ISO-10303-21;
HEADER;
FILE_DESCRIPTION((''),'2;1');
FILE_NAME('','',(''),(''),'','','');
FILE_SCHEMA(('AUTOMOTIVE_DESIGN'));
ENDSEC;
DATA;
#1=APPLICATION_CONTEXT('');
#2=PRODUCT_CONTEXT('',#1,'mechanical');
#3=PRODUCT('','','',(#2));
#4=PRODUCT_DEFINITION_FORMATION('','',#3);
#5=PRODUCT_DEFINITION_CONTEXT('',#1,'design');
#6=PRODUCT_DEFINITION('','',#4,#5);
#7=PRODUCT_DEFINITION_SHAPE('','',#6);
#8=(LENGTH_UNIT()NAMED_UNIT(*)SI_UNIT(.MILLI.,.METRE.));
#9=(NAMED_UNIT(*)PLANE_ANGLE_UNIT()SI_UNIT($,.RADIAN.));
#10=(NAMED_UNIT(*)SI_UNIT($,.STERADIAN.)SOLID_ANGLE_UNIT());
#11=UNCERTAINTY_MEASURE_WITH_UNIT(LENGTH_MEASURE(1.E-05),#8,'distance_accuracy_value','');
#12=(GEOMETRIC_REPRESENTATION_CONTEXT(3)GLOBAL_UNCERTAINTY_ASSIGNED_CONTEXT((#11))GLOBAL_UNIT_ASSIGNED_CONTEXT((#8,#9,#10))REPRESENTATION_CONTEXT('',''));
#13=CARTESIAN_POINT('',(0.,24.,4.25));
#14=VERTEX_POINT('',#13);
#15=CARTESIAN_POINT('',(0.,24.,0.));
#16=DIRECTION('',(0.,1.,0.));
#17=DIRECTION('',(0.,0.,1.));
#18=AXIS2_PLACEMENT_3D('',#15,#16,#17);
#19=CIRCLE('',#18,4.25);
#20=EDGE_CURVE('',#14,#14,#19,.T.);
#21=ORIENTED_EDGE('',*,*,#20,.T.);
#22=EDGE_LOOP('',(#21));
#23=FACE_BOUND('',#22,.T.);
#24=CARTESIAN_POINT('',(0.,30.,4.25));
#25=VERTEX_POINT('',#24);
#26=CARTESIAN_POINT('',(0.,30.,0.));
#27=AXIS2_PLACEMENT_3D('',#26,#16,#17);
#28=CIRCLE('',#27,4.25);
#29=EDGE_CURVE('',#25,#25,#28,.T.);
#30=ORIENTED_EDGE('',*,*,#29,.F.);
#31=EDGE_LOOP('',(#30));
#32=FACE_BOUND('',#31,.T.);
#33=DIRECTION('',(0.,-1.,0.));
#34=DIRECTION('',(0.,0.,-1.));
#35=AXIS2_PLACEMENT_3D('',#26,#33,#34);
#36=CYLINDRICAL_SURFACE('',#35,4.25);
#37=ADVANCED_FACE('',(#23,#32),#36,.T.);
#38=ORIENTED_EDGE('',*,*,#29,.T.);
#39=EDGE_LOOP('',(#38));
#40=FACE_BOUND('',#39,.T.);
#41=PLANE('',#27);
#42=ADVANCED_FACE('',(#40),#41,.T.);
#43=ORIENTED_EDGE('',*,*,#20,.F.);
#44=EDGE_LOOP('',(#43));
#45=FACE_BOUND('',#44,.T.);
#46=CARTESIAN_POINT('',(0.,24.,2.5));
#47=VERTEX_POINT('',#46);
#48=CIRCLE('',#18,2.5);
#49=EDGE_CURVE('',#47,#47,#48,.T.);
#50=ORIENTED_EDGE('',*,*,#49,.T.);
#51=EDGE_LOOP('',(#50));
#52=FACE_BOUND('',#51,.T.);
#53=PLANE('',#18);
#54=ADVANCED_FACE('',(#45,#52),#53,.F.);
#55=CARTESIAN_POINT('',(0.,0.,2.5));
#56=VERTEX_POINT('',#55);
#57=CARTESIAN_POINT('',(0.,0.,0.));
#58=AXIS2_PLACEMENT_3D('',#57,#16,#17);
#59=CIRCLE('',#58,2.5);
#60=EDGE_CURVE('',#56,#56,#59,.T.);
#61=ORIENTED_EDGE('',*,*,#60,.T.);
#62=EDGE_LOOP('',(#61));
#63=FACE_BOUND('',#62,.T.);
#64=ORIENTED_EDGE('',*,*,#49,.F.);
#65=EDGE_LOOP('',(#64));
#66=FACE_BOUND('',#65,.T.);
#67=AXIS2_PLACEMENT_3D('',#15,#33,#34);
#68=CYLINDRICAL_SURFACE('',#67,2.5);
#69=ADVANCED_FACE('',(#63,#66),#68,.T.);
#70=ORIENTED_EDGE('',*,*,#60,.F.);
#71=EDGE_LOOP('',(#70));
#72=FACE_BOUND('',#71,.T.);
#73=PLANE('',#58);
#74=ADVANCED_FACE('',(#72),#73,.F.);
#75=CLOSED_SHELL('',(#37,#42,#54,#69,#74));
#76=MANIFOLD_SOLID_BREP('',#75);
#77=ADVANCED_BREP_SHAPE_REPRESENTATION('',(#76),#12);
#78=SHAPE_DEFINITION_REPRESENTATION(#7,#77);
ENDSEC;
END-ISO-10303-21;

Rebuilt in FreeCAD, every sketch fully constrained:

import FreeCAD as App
import Part
import Sketcher
from FreeCAD import Vector

doc = App.newDocument("Part")
body = doc.addObject("PartDesign::Body", "Body")

sketch1 = body.newObject("Sketcher::SketchObject", "Sketch")
sketch1.AttachmentSupport = (doc.getObject("XZ_Plane"), [""])
sketch1.MapMode = "FlatFace"
sketch1.addGeometry(Part.Circle(Vector(0, 0, 0), Vector(0, 0, 1), 2.5), False)
sketch1.addConstraint(Sketcher.Constraint("Coincident", 0, 3, -1, 1))
sketch1.addConstraint(Sketcher.Constraint("Diameter", 0, 5.0))
pad1 = body.newObject("PartDesign::Pad", "Pad")
pad1.Profile = sketch1
pad1.Length = 24
pad1.Reversed = True

sketch2 = body.newObject("Sketcher::SketchObject", "Sketch001")
sketch2.AttachmentSupport = (doc.getObject("XZ_Plane"), [""])
sketch2.MapMode = "FlatFace"
sketch2.AttachmentOffset = App.Placement(Vector(0, 0, -24), App.Rotation())
sketch2.addGeometry(Part.Circle(Vector(0, 0, 0), Vector(0, 0, 1), 4.2), False)
sketch2.addConstraint(Sketcher.Constraint("Coincident", 0, 3, -1, 1))
sketch2.addConstraint(Sketcher.Constraint("Diameter", 0, 8.5))
pad2 = body.newObject("PartDesign::Pad", "Pad001")
pad2.Profile = sketch2
pad2.Length = 6
pad2.Reversed = True

doc.recompute()
